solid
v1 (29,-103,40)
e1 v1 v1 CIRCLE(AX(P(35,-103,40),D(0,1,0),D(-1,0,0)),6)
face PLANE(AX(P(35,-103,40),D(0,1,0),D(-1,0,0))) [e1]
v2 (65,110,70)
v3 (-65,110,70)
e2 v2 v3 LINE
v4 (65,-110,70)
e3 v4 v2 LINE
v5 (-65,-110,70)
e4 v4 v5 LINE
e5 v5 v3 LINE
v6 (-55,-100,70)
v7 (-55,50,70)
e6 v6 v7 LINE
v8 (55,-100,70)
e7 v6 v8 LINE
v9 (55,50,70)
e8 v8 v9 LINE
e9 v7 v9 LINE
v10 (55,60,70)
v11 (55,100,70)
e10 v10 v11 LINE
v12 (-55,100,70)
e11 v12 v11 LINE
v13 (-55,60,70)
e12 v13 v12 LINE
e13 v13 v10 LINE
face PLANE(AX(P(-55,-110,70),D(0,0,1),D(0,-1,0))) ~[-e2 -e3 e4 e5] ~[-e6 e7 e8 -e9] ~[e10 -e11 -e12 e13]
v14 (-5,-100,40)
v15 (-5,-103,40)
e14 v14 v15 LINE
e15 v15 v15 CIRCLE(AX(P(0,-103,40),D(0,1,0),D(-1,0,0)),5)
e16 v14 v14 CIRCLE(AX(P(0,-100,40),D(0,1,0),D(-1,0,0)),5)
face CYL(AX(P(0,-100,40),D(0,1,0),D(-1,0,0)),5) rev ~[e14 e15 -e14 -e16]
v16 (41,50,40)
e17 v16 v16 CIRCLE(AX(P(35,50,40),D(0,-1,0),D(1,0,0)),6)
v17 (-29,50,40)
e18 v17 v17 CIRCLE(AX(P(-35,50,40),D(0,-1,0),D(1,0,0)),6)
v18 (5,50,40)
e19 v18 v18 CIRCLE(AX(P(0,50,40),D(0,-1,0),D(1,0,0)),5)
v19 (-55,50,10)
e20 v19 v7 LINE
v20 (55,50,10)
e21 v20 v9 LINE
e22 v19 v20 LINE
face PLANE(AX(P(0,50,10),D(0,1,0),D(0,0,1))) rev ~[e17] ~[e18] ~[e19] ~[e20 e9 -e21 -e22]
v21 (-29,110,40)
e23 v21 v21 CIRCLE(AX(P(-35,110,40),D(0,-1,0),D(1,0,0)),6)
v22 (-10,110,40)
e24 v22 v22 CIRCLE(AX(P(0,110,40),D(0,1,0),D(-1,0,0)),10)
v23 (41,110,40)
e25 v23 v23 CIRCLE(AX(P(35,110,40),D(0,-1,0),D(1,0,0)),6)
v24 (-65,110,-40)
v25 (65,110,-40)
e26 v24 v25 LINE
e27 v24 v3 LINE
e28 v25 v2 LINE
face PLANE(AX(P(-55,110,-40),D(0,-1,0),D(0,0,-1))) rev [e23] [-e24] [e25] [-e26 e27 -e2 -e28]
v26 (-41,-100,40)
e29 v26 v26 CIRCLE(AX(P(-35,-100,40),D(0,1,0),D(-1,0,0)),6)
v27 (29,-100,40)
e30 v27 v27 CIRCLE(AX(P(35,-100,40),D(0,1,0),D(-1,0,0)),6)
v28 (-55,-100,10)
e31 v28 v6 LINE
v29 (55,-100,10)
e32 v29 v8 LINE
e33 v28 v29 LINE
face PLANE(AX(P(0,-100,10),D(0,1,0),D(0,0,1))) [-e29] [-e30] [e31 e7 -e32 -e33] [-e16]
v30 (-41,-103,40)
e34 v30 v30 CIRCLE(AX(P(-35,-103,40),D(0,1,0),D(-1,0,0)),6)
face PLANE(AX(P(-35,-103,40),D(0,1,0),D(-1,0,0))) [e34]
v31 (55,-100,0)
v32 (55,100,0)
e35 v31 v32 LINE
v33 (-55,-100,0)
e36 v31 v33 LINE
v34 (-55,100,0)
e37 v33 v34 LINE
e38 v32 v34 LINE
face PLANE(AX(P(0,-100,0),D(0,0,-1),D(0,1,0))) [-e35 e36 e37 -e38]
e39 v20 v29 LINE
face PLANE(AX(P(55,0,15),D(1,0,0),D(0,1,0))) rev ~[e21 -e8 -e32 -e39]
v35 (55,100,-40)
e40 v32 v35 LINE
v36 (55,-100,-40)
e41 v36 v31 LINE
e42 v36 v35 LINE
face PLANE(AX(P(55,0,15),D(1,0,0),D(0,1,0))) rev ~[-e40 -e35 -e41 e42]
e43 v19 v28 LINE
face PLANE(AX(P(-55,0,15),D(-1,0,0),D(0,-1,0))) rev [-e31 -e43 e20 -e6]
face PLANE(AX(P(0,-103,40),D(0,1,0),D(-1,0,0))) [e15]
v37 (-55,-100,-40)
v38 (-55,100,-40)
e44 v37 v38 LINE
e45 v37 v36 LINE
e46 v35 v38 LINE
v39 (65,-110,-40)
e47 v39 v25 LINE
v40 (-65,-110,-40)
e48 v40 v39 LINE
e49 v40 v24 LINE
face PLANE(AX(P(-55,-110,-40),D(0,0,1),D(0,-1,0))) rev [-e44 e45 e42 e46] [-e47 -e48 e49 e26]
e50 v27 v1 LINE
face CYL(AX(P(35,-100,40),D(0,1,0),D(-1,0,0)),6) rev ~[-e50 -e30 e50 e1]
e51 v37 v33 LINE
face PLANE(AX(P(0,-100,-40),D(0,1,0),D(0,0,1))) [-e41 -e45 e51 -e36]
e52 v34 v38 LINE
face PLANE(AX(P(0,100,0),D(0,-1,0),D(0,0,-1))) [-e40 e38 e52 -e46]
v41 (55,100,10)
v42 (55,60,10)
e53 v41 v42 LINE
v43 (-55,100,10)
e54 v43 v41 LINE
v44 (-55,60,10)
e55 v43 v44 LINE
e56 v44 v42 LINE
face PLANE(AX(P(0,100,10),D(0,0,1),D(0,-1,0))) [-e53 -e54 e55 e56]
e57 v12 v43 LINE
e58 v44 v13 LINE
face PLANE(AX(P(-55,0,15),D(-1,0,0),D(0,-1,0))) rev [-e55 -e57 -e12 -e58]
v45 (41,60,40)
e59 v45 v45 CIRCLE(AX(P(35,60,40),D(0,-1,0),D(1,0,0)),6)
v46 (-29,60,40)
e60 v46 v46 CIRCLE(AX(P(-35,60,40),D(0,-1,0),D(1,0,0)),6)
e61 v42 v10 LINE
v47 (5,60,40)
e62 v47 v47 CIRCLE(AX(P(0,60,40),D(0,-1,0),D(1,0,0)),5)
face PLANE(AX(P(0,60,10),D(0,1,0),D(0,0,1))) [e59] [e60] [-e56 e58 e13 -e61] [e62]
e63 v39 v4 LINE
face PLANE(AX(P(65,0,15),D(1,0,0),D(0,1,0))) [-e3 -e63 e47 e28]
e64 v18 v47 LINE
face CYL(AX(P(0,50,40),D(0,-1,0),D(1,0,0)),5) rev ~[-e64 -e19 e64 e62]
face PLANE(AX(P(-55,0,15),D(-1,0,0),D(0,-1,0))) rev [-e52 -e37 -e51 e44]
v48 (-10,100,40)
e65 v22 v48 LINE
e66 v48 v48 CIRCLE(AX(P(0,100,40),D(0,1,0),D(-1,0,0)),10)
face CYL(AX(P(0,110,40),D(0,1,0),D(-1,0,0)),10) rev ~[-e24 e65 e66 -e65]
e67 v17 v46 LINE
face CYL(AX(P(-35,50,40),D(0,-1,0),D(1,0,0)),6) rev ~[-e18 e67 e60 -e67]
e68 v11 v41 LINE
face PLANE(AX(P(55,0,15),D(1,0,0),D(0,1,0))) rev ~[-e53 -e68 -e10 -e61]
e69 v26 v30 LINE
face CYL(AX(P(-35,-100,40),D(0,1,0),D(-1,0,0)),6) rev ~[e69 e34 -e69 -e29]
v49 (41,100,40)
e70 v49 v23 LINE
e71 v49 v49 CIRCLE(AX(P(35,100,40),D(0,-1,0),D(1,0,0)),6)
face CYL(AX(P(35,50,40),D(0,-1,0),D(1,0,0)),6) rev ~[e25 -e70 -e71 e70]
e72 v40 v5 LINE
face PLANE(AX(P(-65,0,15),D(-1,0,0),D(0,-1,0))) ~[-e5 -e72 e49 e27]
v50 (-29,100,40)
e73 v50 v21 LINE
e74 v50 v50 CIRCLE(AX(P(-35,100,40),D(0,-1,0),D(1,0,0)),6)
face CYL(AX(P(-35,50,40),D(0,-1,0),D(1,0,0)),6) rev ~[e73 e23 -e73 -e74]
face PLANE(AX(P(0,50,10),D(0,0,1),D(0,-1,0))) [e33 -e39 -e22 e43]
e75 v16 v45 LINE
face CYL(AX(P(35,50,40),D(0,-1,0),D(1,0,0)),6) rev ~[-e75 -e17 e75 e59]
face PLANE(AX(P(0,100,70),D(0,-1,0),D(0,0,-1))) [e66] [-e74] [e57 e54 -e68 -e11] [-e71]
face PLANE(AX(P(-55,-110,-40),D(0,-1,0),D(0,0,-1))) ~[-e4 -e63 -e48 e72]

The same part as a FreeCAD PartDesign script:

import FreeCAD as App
import Part
import Sketcher


def add_polygon(sketch, points):
    """Adds a closed chain of lines whose ends are joined by coincident constraints."""
    first, n = sketch.GeometryCount, len(points)
    for a, b in zip(points, points[1:] + points[:1]):
        sketch.addGeometry(Part.LineSegment(App.Vector(*a, 0), App.Vector(*b, 0)), False)
    for i in range(n):
        sketch.addConstraint(Sketcher.Constraint("Coincident", first + i, 2, first + (i + 1) % n, 1))

doc = App.newDocument("Part")
body = doc.addObject("PartDesign::Body", "Body")

# Sketch on YZ plane
sketch1 = body.newObject("Sketcher::SketchObject", "Sketch")
sketch1.AttachmentSupport = (doc.getObject("YZ_Plane"), [""])
sketch1.MapMode = "FlatFace"
add_polygon(sketch1, [(100, -40), (110, -40), (110, 70), (100, 70), (100, 10), (60, 10), (60, 70), (50, 70), (50, 10), (-100, 10), (-100, 70), (-110, 70), (-110, -40), (-100, -40), (-100, 0), (100, 0)])  # lines 0-15
sketch1.addConstraint([
    Sketcher.Constraint("Horizontal", 0),
    Sketcher.Constraint("Vertical", 1),
    Sketcher.Constraint("Horizontal", 2),
    Sketcher.Constraint("Vertical", 3),
    Sketcher.Constraint("Horizontal", 4),
    Sketcher.Constraint("Vertical", 5),
    Sketcher.Constraint("Horizontal", 6),
    Sketcher.Constraint("Vertical", 7),
    Sketcher.Constraint("Horizontal", 8),
    Sketcher.Constraint("Vertical", 9),
    Sketcher.Constraint("Horizontal", 10),
    Sketcher.Constraint("Vertical", 11),
    Sketcher.Constraint("Horizontal", 12),
    Sketcher.Constraint("Vertical", 13),
    Sketcher.Constraint("Horizontal", 14),
    Sketcher.Constraint("Vertical", 15),
    Sketcher.Constraint("Symmetric", 13, 2, 14, 2, -1, 1),
    Sketcher.Constraint("Symmetric", 3, 2, 8, 2, -2),
    Sketcher.Constraint("Symmetric", 1, 2, 10, 2, -2),
    Sketcher.Constraint("Horizontal", 2, 2, 5, 2),
    Sketcher.Constraint("Horizontal", 0, 2, 11, 2),
    Sketcher.Constraint("Vertical", 9, 2, 12, 2),
    Sketcher.Constraint("Equal", 2, 6),
    Sketcher.Constraint("Equal", 4, 13),
    Sketcher.Constraint("DistanceX", 0, 1, 0, 2, 10.0),
    Sketcher.Constraint("DistanceX", 4, 2, 4, 1, 40.0),
    Sketcher.Constraint("DistanceX", 8, 2, 8, 1, 150.0),
    Sketcher.Constraint("DistanceY", 1, 1, 1, 2, 110.0),
    Sketcher.Constraint("DistanceY", 3, 2, 3, 1, 60.0),
])
pad1 = body.newObject("PartDesign::Pad", "Pad")
pad1.Profile = sketch1
pad1.Length = 110
pad1.Midplane = True

# Sketch on YZ plane
sketch2 = body.newObject("Sketcher::SketchObject", "Sketch001")
sketch2.AttachmentSupport = (doc.getObject("YZ_Plane"), [""])
sketch2.MapMode = "FlatFace"
sketch2.AttachmentOffset = App.Placement(App.Vector(0, 0, 55), App.Rotation())
add_polygon(sketch2, [(-110, 70), (-110, -40), (110, -40), (110, 70)])  # lines 0-3
sketch2.addConstraint([
    Sketcher.Constraint("Vertical", 0),
    Sketcher.Constraint("Horizontal", 1),
    Sketcher.Constraint("Vertical", 2),
    Sketcher.Constraint("Horizontal", 3),
    Sketcher.Constraint("DistanceX", 1, 1, 1, 2, 220.0),
    Sketcher.Constraint("DistanceY", 0, 2, 0, 1, 110.0),
    Sketcher.Constraint("DistanceX", 0, 2, -1, 1, 110.0),
    Sketcher.Constraint("DistanceY", 0, 2, -1, 1, 40.0),
])
pad2 = body.newObject("PartDesign::Pad", "Pad001")
pad2.Profile = sketch2
pad2.Length = 10
body2 = doc.addObject("PartDesign::Body", "Body001")
doc.recompute()

body2.BaseFeature = body
doc.recompute()

mirroring = doc.addObject("Part::Mirroring", "Mirroring")
mirroring.Source = body
mirroring.Base = App.Vector(0, 0, 0)
mirroring.Normal = App.Vector(1, 0, 0)
body3 = doc.addObject("PartDesign::Body", "Body002")
body3.BaseFeature = mirroring
boolean = body2.newObject("PartDesign::Boolean", "Boolean")
boolean.Type = "Fuse"
boolean.addObjects([body3])
doc.recompute()

# Sketch on XZ plane
sketch3 = body2.newObject("Sketcher::SketchObject", "Sketch002")
sketch3.AttachmentSupport = (doc.getObject("XZ_Plane001"), [""])
sketch3.MapMode = "FlatFace"
sketch3.AttachmentOffset = App.Placement(App.Vector(0, 0, -110), App.Rotation())
sketch3.addGeometry(Part.Circle(App.Vector(0, 40, 0), App.Vector(0, 0, 1), 10), False)
sketch3.addConstraint([
    Sketcher.Constraint("PointOnObject", 0, 3, -2),
    Sketcher.Constraint("Diameter", 0, 20.0),
    Sketcher.Constraint("DistanceY", -1, 1, 0, 3, 40.0),
])
pocket1 = body2.newObject("PartDesign::Pocket", "Pocket")
pocket1.Profile = sketch3
pocket1.Length = 10
pocket1.Reversed = True

# Sketch on XZ plane
sketch4 = body2.newObject("Sketcher::SketchObject", "Sketch003")
sketch4.AttachmentSupport = (doc.getObject("XZ_Plane001"), [""])
sketch4.MapMode = "FlatFace"
sketch4.AttachmentOffset = App.Placement(App.Vector(0, 0, -50), App.Rotation())
sketch4.addGeometry(Part.Circle(App.Vector(0, 40, 0), App.Vector(0, 0, 1), 5), False)
sketch4.addConstraint([
    Sketcher.Constraint("PointOnObject", 0, 3, -2),
    Sketcher.Constraint("Diameter", 0, 10.0),
    Sketcher.Constraint("DistanceY", -1, 1, 0, 3, 40.0),
])
pocket2 = body2.newObject("PartDesign::Pocket", "Pocket001")
pocket2.Profile = sketch4
pocket2.Type = "ThroughAll"

# Sketch on XZ plane
sketch5 = body2.newObject("Sketcher::SketchObject", "Sketch004")
sketch5.AttachmentSupport = (doc.getObject("XZ_Plane001"), [""])
sketch5.MapMode = "FlatFace"
sketch5.AttachmentOffset = App.Placement(App.Vector(0, 0, 100), App.Rotation())
sketch5.addGeometry([
    Part.Circle(App.Vector(0, 40, 0), App.Vector(0, 0, 1), 5),
    Part.Circle(App.Vector(-35, 40, 0), App.Vector(0, 0, 1), 6),
    Part.Circle(App.Vector(35, 40, 0), App.Vector(0, 0, 1), 6),
], False)
sketch5.addConstraint([
    Sketcher.Constraint("Equal", 1, 2),
    Sketcher.Constraint("Symmetric", 1, 3, 2, 3, -2),
    Sketcher.Constraint("PointOnObject", 0, 3, -2),
    Sketcher.Constraint("Horizontal", 0, 3, 1, 3),
    Sketcher.Constraint("Diameter", 0, 10.0),
    Sketcher.Constraint("Diameter", 1, 12.0),
    Sketcher.Constraint("DistanceY", -1, 1, 0, 3, 40.0),
    Sketcher.Constraint("DistanceX", 1, 3, -1, 1, 35.0),
])
pocket3 = body2.newObject("PartDesign::Pocket", "Pocket002")
pocket3.Profile = sketch5
pocket3.Length = 3
pocket3.Reversed = True

# Sketch on XZ plane
sketch6 = body2.newObject("Sketcher::SketchObject", "Sketch005")
sketch6.AttachmentSupport = (doc.getObject("XZ_Plane001"), [""])
sketch6.MapMode = "FlatFace"
sketch6.AttachmentOffset = App.Placement(App.Vector(0, 0, -50), App.Rotation())
sketch6.addGeometry([
    Part.Circle(App.Vector(-35, 40, 0), App.Vector(0, 0, 1), 6),
    Part.Circle(App.Vector(35, 40, 0), App.Vector(0, 0, 1), 6),
], False)
sketch6.addConstraint([
    Sketcher.Constraint("Equal", 0, 1),
    Sketcher.Constraint("Symmetric", 0, 3, 1, 3, -2),
    Sketcher.Constraint("Diameter", 0, 12.0),
    Sketcher.Constraint("DistanceX", 0, 3, -1, 1, 35.0),
    Sketcher.Constraint("DistanceY", -1, 1, 0, 3, 40.0),
])
pocket4 = body2.newObject("PartDesign::Pocket", "Pocket003")
pocket4.Profile = sketch6
pocket4.Type = "ThroughAll"
mirroring.Visibility = False

doc.recompute()
